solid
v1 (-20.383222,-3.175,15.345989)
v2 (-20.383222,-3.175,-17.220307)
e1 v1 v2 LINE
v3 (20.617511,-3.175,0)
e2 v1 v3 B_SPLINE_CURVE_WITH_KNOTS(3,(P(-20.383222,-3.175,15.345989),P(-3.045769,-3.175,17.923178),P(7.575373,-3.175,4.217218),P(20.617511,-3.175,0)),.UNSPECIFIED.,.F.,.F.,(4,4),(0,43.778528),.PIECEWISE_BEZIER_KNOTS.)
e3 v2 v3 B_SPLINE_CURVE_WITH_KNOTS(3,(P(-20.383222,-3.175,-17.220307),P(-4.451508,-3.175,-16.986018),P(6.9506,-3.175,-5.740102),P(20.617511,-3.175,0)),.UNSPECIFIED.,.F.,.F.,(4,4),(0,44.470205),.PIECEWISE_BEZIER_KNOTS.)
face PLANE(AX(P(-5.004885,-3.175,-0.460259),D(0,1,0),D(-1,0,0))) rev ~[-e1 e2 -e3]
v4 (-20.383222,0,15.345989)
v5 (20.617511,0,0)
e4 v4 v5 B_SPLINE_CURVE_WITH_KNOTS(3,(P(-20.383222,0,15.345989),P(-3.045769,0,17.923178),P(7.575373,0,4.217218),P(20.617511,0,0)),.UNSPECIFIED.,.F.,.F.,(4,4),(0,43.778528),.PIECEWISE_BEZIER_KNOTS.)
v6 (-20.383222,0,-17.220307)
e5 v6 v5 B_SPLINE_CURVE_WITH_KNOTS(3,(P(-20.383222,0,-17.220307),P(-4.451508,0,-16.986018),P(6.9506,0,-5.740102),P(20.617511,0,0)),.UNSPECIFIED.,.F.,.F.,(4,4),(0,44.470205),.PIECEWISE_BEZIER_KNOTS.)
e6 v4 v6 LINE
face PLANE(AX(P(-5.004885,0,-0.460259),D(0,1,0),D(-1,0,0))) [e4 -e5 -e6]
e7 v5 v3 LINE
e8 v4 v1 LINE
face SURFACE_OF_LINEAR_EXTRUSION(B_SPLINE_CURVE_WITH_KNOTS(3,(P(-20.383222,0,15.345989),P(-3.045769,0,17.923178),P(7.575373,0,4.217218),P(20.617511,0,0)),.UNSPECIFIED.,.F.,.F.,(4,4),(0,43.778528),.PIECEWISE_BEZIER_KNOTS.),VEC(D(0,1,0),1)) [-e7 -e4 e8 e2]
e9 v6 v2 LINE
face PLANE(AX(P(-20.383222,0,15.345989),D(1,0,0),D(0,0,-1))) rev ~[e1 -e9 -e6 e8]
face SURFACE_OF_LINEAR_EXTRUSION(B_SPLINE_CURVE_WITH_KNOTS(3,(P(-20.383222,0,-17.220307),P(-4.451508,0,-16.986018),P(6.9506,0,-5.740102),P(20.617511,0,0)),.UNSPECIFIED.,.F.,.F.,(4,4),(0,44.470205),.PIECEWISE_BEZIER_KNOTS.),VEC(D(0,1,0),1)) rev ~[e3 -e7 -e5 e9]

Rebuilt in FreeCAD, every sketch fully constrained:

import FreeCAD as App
import Part
import Sketcher
Q = App.Units.Quantity

doc = App.newDocument("Part")
body = doc.addObject("PartDesign::Body", "Body")

sketch1 = body.newObject("Sketcher::SketchObject", "Sketch")
sketch1.AttachmentSupport = (doc.getObject("XZ_Plane"), [""])
sketch1.MapMode = "FlatFace"
sketch1.addGeometry([
    Part.BSplineCurve([App.Vector(-20.383222, 15.345989, 0), App.Vector(-3.045769, 17.923178, 0), App.Vector(7.575373, 4.217218, 0), App.Vector(20.617511, 0, 0)], [4, 4], [0, 43.778528], False, 3, [1, 1, 1, 1], False),
    Part.LineSegment(App.Vector(-20.383222, 15.345989, 0), App.Vector(-20.383222, -17.220307, 0)),
    Part.BSplineCurve([App.Vector(-20.383222, -17.220307, 0), App.Vector(-4.451508, -16.986018, 0), App.Vector(6.9506, -5.740102, 0), App.Vector(20.617511, 0, 0)], [4, 4], [0, 44.470205], False, 3, [1, 1, 1, 1], False),
], False)
sketch1.addConstraint([
    Sketcher.Constraint("Block", 0),
    Sketcher.Constraint("Block", 2),
    Sketcher.Constraint("Coincident", 0, 1, 1, 1),
    Sketcher.Constraint("Coincident", 1, 2, 2, 1),
])
pad1 = body.newObject("PartDesign::Pad", "Pad")
pad1.Profile = sketch1
pad1.Length = Q("0.125 in")

doc.recompute()
